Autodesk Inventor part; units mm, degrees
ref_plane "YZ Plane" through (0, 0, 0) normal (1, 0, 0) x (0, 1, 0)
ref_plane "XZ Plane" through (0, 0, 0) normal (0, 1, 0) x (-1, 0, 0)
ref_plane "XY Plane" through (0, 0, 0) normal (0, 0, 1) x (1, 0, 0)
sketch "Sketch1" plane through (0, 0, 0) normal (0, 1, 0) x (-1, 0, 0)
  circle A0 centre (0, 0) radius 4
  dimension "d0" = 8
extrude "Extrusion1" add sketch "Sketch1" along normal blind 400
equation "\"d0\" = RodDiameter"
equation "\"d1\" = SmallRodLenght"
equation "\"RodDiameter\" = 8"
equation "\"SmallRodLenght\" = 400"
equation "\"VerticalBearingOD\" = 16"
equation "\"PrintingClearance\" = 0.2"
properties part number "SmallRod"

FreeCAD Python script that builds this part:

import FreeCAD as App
import Part
import Sketcher

V = App.Vector

doc = App.newDocument("Part")
params = doc.addObject("Spreadsheet::Sheet", "Params")
for row, (alias, value) in enumerate([
    ("sketch1_diameter", "8 mm"),
    ("pad1_length", "400 mm"),
], start=1):
    params.set(f"A{row}", alias)
    params.set(f"B{row}", "=" + value)
    params.setAlias(f"B{row}", alias)

body = doc.addObject("PartDesign::Body", "Body")

# Sketch on XZ plane
sketch1 = body.newObject("Sketcher::SketchObject", "Sketch")
sketch1.AttachmentSupport = (doc.getObject("XZ_Plane"), [""])
sketch1.MapMode = "FlatFace"
sketch1.addGeometry(Part.Circle(V(0, 0, 0), V(0, 0, 1), 4), False)
sketch1.addConstraint([
    Sketcher.Constraint("Coincident", 0, 3, -1, 1),
    Sketcher.Constraint("Diameter", 0, 8.0),
])
sketch1.setExpression("Constraints[1]", "Params.sketch1_diameter")
pad1 = body.newObject("PartDesign::Pad", "Pad")
pad1.Profile = sketch1
pad1.setExpression("Length", "Params.pad1_length")
pad1.Reversed = True

doc.recompute()
